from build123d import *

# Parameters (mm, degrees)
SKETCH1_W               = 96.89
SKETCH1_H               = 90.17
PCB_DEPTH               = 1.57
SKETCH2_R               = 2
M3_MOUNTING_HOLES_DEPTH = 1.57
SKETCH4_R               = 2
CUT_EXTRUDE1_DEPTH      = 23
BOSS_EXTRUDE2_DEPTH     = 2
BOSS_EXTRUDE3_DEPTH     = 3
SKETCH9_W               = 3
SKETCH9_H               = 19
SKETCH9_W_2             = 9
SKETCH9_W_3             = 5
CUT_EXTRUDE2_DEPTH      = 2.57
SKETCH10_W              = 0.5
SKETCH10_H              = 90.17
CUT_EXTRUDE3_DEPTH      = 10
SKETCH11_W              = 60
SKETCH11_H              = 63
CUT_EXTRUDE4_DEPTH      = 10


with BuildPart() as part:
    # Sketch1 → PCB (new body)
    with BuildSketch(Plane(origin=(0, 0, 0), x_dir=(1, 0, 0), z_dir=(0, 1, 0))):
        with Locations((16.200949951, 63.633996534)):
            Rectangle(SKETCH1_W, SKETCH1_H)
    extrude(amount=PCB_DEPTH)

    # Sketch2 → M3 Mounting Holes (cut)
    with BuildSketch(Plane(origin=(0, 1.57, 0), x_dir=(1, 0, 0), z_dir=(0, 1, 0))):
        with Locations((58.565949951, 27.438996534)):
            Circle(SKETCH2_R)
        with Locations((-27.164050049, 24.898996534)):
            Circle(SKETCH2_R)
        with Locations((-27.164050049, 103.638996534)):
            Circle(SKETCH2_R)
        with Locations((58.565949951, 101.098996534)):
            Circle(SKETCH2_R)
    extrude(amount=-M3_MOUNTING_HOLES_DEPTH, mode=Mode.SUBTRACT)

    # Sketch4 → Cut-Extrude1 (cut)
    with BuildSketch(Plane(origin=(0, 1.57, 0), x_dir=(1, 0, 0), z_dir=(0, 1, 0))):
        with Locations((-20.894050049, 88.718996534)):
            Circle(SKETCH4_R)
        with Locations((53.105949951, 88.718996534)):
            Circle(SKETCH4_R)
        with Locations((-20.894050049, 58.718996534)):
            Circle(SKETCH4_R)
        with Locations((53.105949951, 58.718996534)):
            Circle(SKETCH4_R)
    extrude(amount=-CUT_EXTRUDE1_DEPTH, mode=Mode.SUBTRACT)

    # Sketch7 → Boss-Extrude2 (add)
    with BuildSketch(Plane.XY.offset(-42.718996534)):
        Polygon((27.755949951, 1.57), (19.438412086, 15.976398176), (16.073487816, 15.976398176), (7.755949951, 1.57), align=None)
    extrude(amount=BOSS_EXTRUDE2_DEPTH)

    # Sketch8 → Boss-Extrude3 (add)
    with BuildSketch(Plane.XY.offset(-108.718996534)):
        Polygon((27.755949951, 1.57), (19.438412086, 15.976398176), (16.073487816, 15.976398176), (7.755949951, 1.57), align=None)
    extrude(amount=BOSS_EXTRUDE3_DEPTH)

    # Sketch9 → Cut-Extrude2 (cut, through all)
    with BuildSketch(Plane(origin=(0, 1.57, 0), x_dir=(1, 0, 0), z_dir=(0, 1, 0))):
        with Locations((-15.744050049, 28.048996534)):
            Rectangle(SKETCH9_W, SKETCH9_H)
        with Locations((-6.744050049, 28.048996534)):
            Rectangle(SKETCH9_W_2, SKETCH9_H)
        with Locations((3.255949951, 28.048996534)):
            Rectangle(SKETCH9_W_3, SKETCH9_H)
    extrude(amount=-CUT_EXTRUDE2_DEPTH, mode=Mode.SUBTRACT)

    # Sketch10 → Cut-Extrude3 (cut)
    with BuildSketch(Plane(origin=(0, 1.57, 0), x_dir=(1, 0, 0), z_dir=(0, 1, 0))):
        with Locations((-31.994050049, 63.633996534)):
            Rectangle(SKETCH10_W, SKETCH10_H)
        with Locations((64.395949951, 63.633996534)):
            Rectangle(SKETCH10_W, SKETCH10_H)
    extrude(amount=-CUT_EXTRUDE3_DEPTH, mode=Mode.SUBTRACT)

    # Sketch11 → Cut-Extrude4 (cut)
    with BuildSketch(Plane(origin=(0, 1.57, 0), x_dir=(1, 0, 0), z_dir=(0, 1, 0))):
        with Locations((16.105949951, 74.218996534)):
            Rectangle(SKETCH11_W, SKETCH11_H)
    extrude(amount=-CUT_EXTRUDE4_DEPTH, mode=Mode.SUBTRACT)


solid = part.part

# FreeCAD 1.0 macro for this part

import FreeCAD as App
import Part
import Sketcher
Q = App.Units.Quantity

doc = App.newDocument("Part")
body = doc.addObject("PartDesign::Body", "Body")

sketch1 = body.newObject("Sketcher::SketchObject", "Sketch")
sketch1.AttachmentSupport = (doc.getObject("XZ_Plane"), [""])
sketch1.MapMode = "FlatFace"
sketch1.addGeometry([
    Part.LineSegment(App.Vector(-32, -109, 0), App.Vector(-32, -19, 0)),
    Part.LineSegment(App.Vector(-32, -19, 0), App.Vector(65, -19, 0)),
    Part.LineSegment(App.Vector(65, -19, 0), App.Vector(65, -109, 0)),
    Part.LineSegment(App.Vector(65, -109, 0), App.Vector(-32, -109, 0)),
], False)
sketch1.addConstraint([
    Sketcher.Constraint("Coincident", 0, 2, 1, 1),
    Sketcher.Constraint("Coincident", 1, 2, 2, 1),
    Sketcher.Constraint("Coincident", 2, 2, 3, 1),
    Sketcher.Constraint("Coincident", 3, 2, 0, 1),
    Sketcher.Constraint("Vertical", 0),
    Sketcher.Constraint("Horizontal", 1),
    Sketcher.Constraint("Vertical", 2),
    Sketcher.Constraint("Horizontal", 3),
    Sketcher.Constraint("DistanceX", 1, 1, 1, 2, Q("96.89 mm")),
    Sketcher.Constraint("DistanceY", 0, 1, 0, 2, Q("90.17 mm")),
    Sketcher.Constraint("DistanceX", 0, 2, -1, 1, Q("32.24405 mm")),
    Sketcher.Constraint("DistanceY", 0, 2, -1, 1, Q("18.548997 mm")),
])
pad1 = body.newObject("PartDesign::Pad", "Pad")
pad1.Profile = sketch1
pad1.Length = 1.57
pad1.Reversed = True

sketch2 = body.newObject("Sketcher::SketchObject", "Sketch001")
sketch2.AttachmentSupport = (doc.getObject("XZ_Plane"), [""])
sketch2.MapMode = "FlatFace"
sketch2.AttachmentOffset = App.Placement(App.Vector(0, 0, -1.57), App.Rotation())
sketch2.addGeometry([
    Part.Circle(App.Vector(58.6, -27.4, 0), App.Vector(0, 0, 1), 2),
    Part.Circle(App.Vector(-27.2, -24.9, 0), App.Vector(0, 0, 1), 2),
    Part.Circle(App.Vector(-27.2, -103.6, 0), App.Vector(0, 0, 1), 2),
    Part.Circle(App.Vector(58.6, -101.1, 0), App.Vector(0, 0, 1), 2),
], False)
sketch2.addConstraint([
    Sketcher.Constraint("Equal", 0, 1),
    Sketcher.Constraint("Equal", 1, 2),
    Sketcher.Constraint("Equal", 2, 3),
    Sketcher.Constraint("Vertical", 1, 3, 2, 3),
    Sketcher.Constraint("Vertical", 0, 3, 3, 3),
    Sketcher.Constraint("Diameter", 0, Q("4 mm")),
    Sketcher.Constraint("DistanceY", 2, 3, 0, 3, Q("76.2 mm")),
    Sketcher.Constraint("DistanceY", 3, 3, 1, 3, Q("76.2 mm")),
    Sketcher.Constraint("DistanceX", 1, 3, 0, 3, Q("85.73 mm")),
    Sketcher.Constraint("DistanceY", 0, 3, 1, 3, Q("2.54 mm")),
    Sketcher.Constraint("DistanceX", -1, 1, 0, 3, Q("58.56595 mm")),
    Sketcher.Constraint("DistanceY", 0, 3, -1, 1, Q("27.438997 mm")),
])
pocket1 = body.newObject("PartDesign::Pocket", "Pocket")
pocket1.Profile = sketch2
pocket1.Length = 1.57
pocket1.Reversed = True

sketch3 = body.newObject("Sketcher::SketchObject", "Sketch002")
sketch3.AttachmentSupport = (doc.getObject("XZ_Plane"), [""])
sketch3.MapMode = "FlatFace"
sketch3.AttachmentOffset = App.Placement(App.Vector(0, 0, -1.57), App.Rotation())
sketch3.addGeometry([
    Part.Circle(App.Vector(-20.9, -88.7, 0), App.Vector(0, 0, 1), 2),
    Part.Circle(App.Vector(53.1, -88.7, 0), App.Vector(0, 0, 1), 2),
    Part.Circle(App.Vector(-20.9, -58.7, 0), App.Vector(0, 0, 1), 2),
    Part.Circle(App.Vector(53.1, -58.7, 0), App.Vector(0, 0, 1), 2),
], False)
sketch3.addConstraint([
    Sketcher.Constraint("Equal", 0, 1),
    Sketcher.Constraint("Equal", 1, 2),
    Sketcher.Constraint("Equal", 2, 3),
    Sketcher.Constraint("Horizontal", 0, 3, 1, 3),
    Sketcher.Constraint("Horizontal", 2, 3, 3, 3),
    Sketcher.Constraint("Vertical", 0, 3, 2, 3),
    Sketcher.Constraint("Vertical", 1, 3, 3, 3),
    Sketcher.Constraint("Diameter", 0, Q("4 mm")),
    Sketcher.Constraint("DistanceX", 0, 3, 1, 3, Q("74 mm")),
    Sketcher.Constraint("DistanceY", 0, 3, 2, 3, Q("30 mm")),
    Sketcher.Constraint("DistanceX", 0, 3, -1, 1, Q("20.89405 mm")),
    Sketcher.Constraint("DistanceY", 0, 3, -1, 1, Q("88.718997 mm")),
])
pocket2 = body.newObject("PartDesign::Pocket", "Pocket001")
pocket2.Profile = sketch3
pocket2.Length = 23
pocket2.Reversed = True

sketch4 = body.newObject("Sketcher::SketchObject", "Sketch003")
sketch4.AttachmentSupport = (doc.getObject("XY_Plane"), [""])
sketch4.MapMode = "FlatFace"
sketch4.AttachmentOffset = App.Placement(App.Vector(0, 0, -42.718997), App.Rotation())
sketch4.addGeometry([
    Part.LineSegment(App.Vector(27.8, 1.6, 0), App.Vector(19.4, 16, 0)),
    Part.LineSegment(App.Vector(19.4, 16, 0), App.Vector(16.1, 16, 0)),
    Part.LineSegment(App.Vector(16.1, 16, 0), App.Vector(7.8, 1.6, 0)),
    Part.LineSegment(App.Vector(7.8, 1.6, 0), App.Vector(27.8, 1.6, 0)),
], False)
sketch4.addConstraint([
    Sketcher.Constraint("Coincident", 0, 2, 1, 1),
    Sketcher.Constraint("Coincident", 1, 2, 2, 1),
    Sketcher.Constraint("Coincident", 2, 2, 3, 1),
    Sketcher.Constraint("Coincident", 3, 2, 0, 1),
    Sketcher.Constraint("Horizontal", 1),
    Sketcher.Constraint("Horizontal", 3),
    Sketcher.Constraint("Equal", 0, 2),
    Sketcher.Constraint("DistanceX", 3, 1, 3, 2, Q("20 mm")),
    Sketcher.Constraint("Angle", 0, Q("120 deg")),
    Sketcher.Constraint("DistanceY", -1, 1, 2, 2, Q("1.57 mm")),
    Sketcher.Constraint("DistanceY", -1, 1, 0, 2, Q("15.976398 mm")),
    Sketcher.Constraint("DistanceX", -1, 1, 2, 2, Q("7.75595 mm")),
])
pad2 = body.newObject("PartDesign::Pad", "Pad001")
pad2.Profile = sketch4
pad2.Length = 2

sketch5 = body.newObject("Sketcher::SketchObject", "Sketch004")
sketch5.AttachmentSupport = (doc.getObject("XY_Plane"), [""])
sketch5.MapMode = "FlatFace"
sketch5.AttachmentOffset = App.Placement(App.Vector(0, 0, -108.718997), App.Rotation())
sketch5.addGeometry([
    Part.LineSegment(App.Vector(27.8, 1.6, 0), App.Vector(19.4, 16, 0)),
    Part.LineSegment(App.Vector(19.4, 16, 0), App.Vector(16.1, 16, 0)),
    Part.LineSegment(App.Vector(16.1, 16, 0), App.Vector(7.8, 1.6, 0)),
    Part.LineSegment(App.Vector(7.8, 1.6, 0), App.Vector(27.8, 1.6, 0)),
], False)
sketch5.addConstraint([
    Sketcher.Constraint("Coincident", 0, 2, 1, 1),
    Sketcher.Constraint("Coincident", 1, 2, 2, 1),
    Sketcher.Constraint("Coincident", 2, 2, 3, 1),
    Sketcher.Constraint("Coincident", 3, 2, 0, 1),
    Sketcher.Constraint("Horizontal", 1),
    Sketcher.Constraint("Horizontal", 3),
    Sketcher.Constraint("Equal", 0, 2),
    Sketcher.Constraint("DistanceX", 3, 1, 3, 2, Q("20 mm")),
    Sketcher.Constraint("Angle", 0, Q("120 deg")),
    Sketcher.Constraint("DistanceY", -1, 1, 2, 2, Q("1.57 mm")),
    Sketcher.Constraint("DistanceY", -1, 1, 0, 2, Q("15.976398 mm")),
    Sketcher.Constraint("DistanceX", -1, 1, 2, 2, Q("7.75595 mm")),
])
pad3 = body.newObject("PartDesign::Pad", "Pad002")
pad3.Profile = sketch5
pad3.Length = 3

sketch6 = body.newObject("Sketcher::SketchObject", "Sketch005")
sketch6.AttachmentSupport = (doc.getObject("XZ_Plane"), [""])
sketch6.MapMode = "FlatFace"
sketch6.AttachmentOffset = App.Placement(App.Vector(0, 0, -1.57), App.Rotation())
sketch6.addGeometry([
    Part.LineSegment(App.Vector(-17.2, -37.5, 0), App.Vector(-17.2, -18.5, 0)),
    Part.LineSegment(App.Vector(-17.2, -18.5, 0), App.Vector(-14.2, -18.5, 0)),
    Part.LineSegment(App.Vector(-14.2, -18.5, 0), App.Vector(-14.2, -37.5, 0)),
    Part.LineSegment(App.Vector(-14.2, -37.5, 0), App.Vector(-17.2, -37.5, 0)),
    Part.LineSegment(App.Vector(-11.2, -37.5, 0), App.Vector(-11.2, -18.5, 0)),
    Part.LineSegment(App.Vector(-11.2, -18.5, 0), App.Vector(-2.2, -18.5, 0)),
    Part.LineSegment(App.Vector(-2.2, -18.5, 0), App.Vector(-2.2, -37.5, 0)),
    Part.LineSegment(App.Vector(-2.2, -37.5, 0), App.Vector(-11.2, -37.5, 0)),
    Part.LineSegment(App.Vector(0.8, -37.5, 0), App.Vector(0.8, -18.5, 0)),
    Part.LineSegment(App.Vector(0.8, -18.5, 0), App.Vector(5.8, -18.5, 0)),
    Part.LineSegment(App.Vector(5.8, -18.5, 0), App.Vector(5.8, -37.5, 0)),
    Part.LineSegment(App.Vector(5.8, -37.5, 0), App.Vector(0.8, -37.5, 0)),
], False)
sketch6.addConstraint([
    Sketcher.Constraint("Coincident", 0, 2, 1, 1),
    Sketcher.Constraint("Coincident", 1, 2, 2, 1),
    Sketcher.Constraint("Coincident", 2, 2, 3, 1),
    Sketcher.Constraint("Coincident", 3, 2, 0, 1),
    Sketcher.Constraint("Coincident", 4, 2, 5, 1),
    Sketcher.Constraint("Coincident", 5, 2, 6, 1),
    Sketcher.Constraint("Coincident", 6, 2, 7, 1),
    Sketcher.Constraint("Coincident", 7, 2, 4, 1),
    Sketcher.Constraint("Coincident", 8, 2, 9, 1),
    Sketcher.Constraint("Coincident", 9, 2, 10, 1),
    Sketcher.Constraint("Coincident", 10, 2, 11, 1),
    Sketcher.Constraint("Coincident", 11, 2, 8, 1),
    Sketcher.Constraint("Vertical", 0),
    Sketcher.Constraint("Horizontal", 1),
    Sketcher.Constraint("Vertical", 2),
    Sketcher.Constraint("Horizontal", 3),
    Sketcher.Constraint("Vertical", 4),
    Sketcher.Constraint("Horizontal", 5),
    Sketcher.Constraint("Vertical", 6),
    Sketcher.Constraint("Horizontal", 7),
    Sketcher.Constraint("Vertical", 8),
    Sketcher.Constraint("Horizontal", 9),
    Sketcher.Constraint("Vertical", 10),
    Sketcher.Constraint("Horizontal", 11),
    Sketcher.Constraint("Horizontal", 1, 2, 4, 2),
    Sketcher.Constraint("Horizontal", 3, 2, 6, 2),
    Sketcher.Constraint("Horizontal", 5, 2, 8, 2),
    Sketcher.Constraint("Horizontal", 7, 2, 10, 2),
    Sketcher.Constraint("DistanceX", 1, 1, 1, 2, Q("3 mm")),
    Sketcher.Constraint("DistanceX", 5, 1, 5, 2, Q("9 mm")),
    Sketcher.Constraint("DistanceX", 9, 1, 9, 2, Q("5 mm")),
    Sketcher.Constraint("DistanceY", 0, 1, 0, 2, Q("19 mm")),
    Sketcher.Constraint("DistanceX", 1, 2, 4, 2, Q("3 mm")),
    Sketcher.Constraint("DistanceX", 5, 2, 8, 2, Q("3 mm")),
    Sketcher.Constraint("DistanceX", 0, 2, -1, 1, Q("17.24405 mm")),
    Sketcher.Constraint("DistanceY", 0, 2, -1, 1, Q("18.548997 mm")),
])
pocket3 = body.newObject("PartDesign::Pocket", "Pocket002")
pocket3.Profile = sketch6
pocket3.Type = "ThroughAll"
pocket3.Reversed = True

sketch7 = body.newObject("Sketcher::SketchObject", "Sketch006")
sketch7.AttachmentSupport = (doc.getObject("XZ_Plane"), [""])
sketch7.MapMode = "FlatFace"
sketch7.AttachmentOffset = App.Placement(App.Vector(0, 0, -1.57), App.Rotation())
sketch7.addGeometry([
    Part.LineSegment(App.Vector(-32.2, -108.7, 0), App.Vector(-32.2, -18.5, 0)),
    Part.LineSegment(App.Vector(-32.2, -18.5, 0), App.Vector(-31.7, -18.5, 0)),
    Part.LineSegment(App.Vector(-31.7, -18.5, 0), App.Vector(-31.7, -108.7, 0)),
    Part.LineSegment(App.Vector(-31.7, -108.7, 0), App.Vector(-32.2, -108.7, 0)),
    Part.LineSegment(App.Vector(64.1, -108.7, 0), App.Vector(64.1, -18.5, 0)),
    Part.LineSegment(App.Vector(64.1, -18.5, 0), App.Vector(64.6, -18.5, 0)),
    Part.LineSegment(App.Vector(64.6, -18.5, 0), App.Vector(64.6, -108.7, 0)),
    Part.LineSegment(App.Vector(64.6, -108.7, 0), App.Vector(64.1, -108.7, 0)),
], False)
sketch7.addConstraint([
    Sketcher.Constraint("Coincident", 0, 2, 1, 1),
    Sketcher.Constraint("Coincident", 1, 2, 2, 1),
    Sketcher.Constraint("Coincident", 2, 2, 3, 1),
    Sketcher.Constraint("Coincident", 3, 2, 0, 1),
    Sketcher.Constraint("Coincident", 4, 2, 5, 1),
    Sketcher.Constraint("Coincident", 5, 2, 6, 1),
    Sketcher.Constraint("Coincident", 6, 2, 7, 1),
    Sketcher.Constraint("Coincident", 7, 2, 4, 1),
    Sketcher.Constraint("Vertical", 0),
    Sketcher.Constraint("Horizontal", 1),
    Sketcher.Constraint("Vertical", 2),
    Sketcher.Constraint("Horizontal", 3),
    Sketcher.Constraint("Vertical", 4),
    Sketcher.Constraint("Horizontal", 5),
    Sketcher.Constraint("Vertical", 6),
    Sketcher.Constraint("Horizontal", 7),
    Sketcher.Constraint("Horizontal", 1, 2, 4, 2),
    Sketcher.Constraint("Horizontal", 3, 2, 6, 2),
    Sketcher.Constraint("Equal", 3, 5),
    Sketcher.Constraint("DistanceX", 1, 1, 1, 2, Q("0.5 mm")),
    Sketcher.Constraint("DistanceY", 0, 1, 0, 2, Q("90.17 mm")),
    Sketcher.Constraint("DistanceX", 1, 2, 4, 2, Q("95.89 mm")),
    Sketcher.Constraint("DistanceX", 0, 2, -1, 1, Q("32.24405 mm")),
    Sketcher.Constraint("DistanceY", 0, 2, -1, 1, Q("18.548997 mm")),
])
pocket4 = body.newObject("PartDesign::Pocket", "Pocket003")
pocket4.Profile = sketch7
pocket4.Length = 10
pocket4.Reversed = True

sketch8 = body.newObject("Sketcher::SketchObject", "Sketch007")
sketch8.AttachmentSupport = (doc.getObject("XZ_Plane"), [""])
sketch8.MapMode = "FlatFace"
sketch8.AttachmentOffset = App.Placement(App.Vector(0, 0, -1.57), App.Rotation())
sketch8.addGeometry([
    Part.LineSegment(App.Vector(-14, -106, 0), App.Vector(-14, -43, 0)),
    Part.LineSegment(App.Vector(-14, -43, 0), App.Vector(46, -43, 0)),
    Part.LineSegment(App.Vector(46, -43, 0), App.Vector(46, -106, 0)),
    Part.LineSegment(App.Vector(46, -106, 0), App.Vector(-14, -106, 0)),
], False)
sketch8.addConstraint([
    Sketcher.Constraint("Coincident", 0, 2, 1, 1),
    Sketcher.Constraint("Coincident", 1, 2, 2, 1),
    Sketcher.Constraint("Coincident", 2, 2, 3, 1),
    Sketcher.Constraint("Coincident", 3, 2, 0, 1),
    Sketcher.Constraint("Vertical", 0),
    Sketcher.Constraint("Horizontal", 1),
    Sketcher.Constraint("Vertical", 2),
    Sketcher.Constraint("Horizontal", 3),
    Sketcher.Constraint("DistanceX", 1, 1, 1, 2, Q("60 mm")),
    Sketcher.Constraint("DistanceY", 0, 1, 0, 2, Q("63 mm")),
    Sketcher.Constraint("DistanceX", 0, 2, -1, 1, Q("13.89405 mm")),
    Sketcher.Constraint("DistanceY", 0, 2, -1, 1, Q("42.718997 mm")),
])
pocket5 = body.newObject("PartDesign::Pocket", "Pocket004")
pocket5.Profile = sketch8
pocket5.Length = 10
pocket5.Reversed = True

doc.recompute()
